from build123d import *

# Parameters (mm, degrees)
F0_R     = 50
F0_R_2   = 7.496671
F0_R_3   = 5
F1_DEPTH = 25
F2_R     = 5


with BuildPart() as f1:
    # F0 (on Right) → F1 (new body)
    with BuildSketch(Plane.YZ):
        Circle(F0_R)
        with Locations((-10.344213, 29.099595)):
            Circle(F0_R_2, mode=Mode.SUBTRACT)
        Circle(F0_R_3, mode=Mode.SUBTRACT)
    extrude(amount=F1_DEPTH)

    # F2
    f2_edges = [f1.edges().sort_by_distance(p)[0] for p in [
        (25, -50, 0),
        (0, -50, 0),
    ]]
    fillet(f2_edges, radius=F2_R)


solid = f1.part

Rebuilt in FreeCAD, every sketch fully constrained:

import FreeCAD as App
import Part
import Sketcher

V = App.Vector
Q = App.Units.Quantity


def edges_at(feature, points):
    """Names of the edges that pass closest to the given points."""
    edges = feature.Shape.Edges
    near = lambda p: min(range(len(edges)), key=lambda i: edges[i].distToShape(Part.Vertex(*p))[0])
    return sorted({f"Edge{near(p) + 1}" for p in points})

doc = App.newDocument("Part")
body = doc.addObject("PartDesign::Body", "Body")

# Sketch on YZ plane
sketch1 = body.newObject("Sketcher::SketchObject", "Sketch")
sketch1.AttachmentSupport = (doc.getObject("YZ_Plane"), [""])
sketch1.MapMode = "FlatFace"
sketch1.addGeometry(Part.Circle(V(0, 0, 0), V(0, 0, 1), 50), False)
sketch1.addGeometry(Part.Circle(V(0, 0, 0), V(0, 0, 1), 5), False)
sketch1.addGeometry(Part.Circle(V(-10, 29, 0), V(0, 0, 1), 7), False)
sketch1.addConstraint(Sketcher.Constraint("Coincident", 0, 3, -1, 1))
sketch1.addConstraint(Sketcher.Constraint("Coincident", 1, 3, -1, 1))
sketch1.addConstraint(Sketcher.Constraint("Diameter", 0, Q("100 mm")))
sketch1.addConstraint(Sketcher.Constraint("Diameter", 1, Q("10 mm")))
sketch1.addConstraint(Sketcher.Constraint("Diameter", 2, Q("14.993342 mm")))
sketch1.addConstraint(Sketcher.Constraint("DistanceX", 2, 3, -1, 1, Q("10.344213 mm")))
sketch1.addConstraint(Sketcher.Constraint("DistanceY", -1, 1, 2, 3, Q("29.099595 mm")))
pad1 = body.newObject("PartDesign::Pad", "Pad")
pad1.Profile = sketch1
pad1.Length = 25
doc.recompute()

fillet = body.newObject("PartDesign::Fillet", "Fillet")
fillet.Base = (pad1, edges_at(pad1, [(25, -50, 0), (0, -50, 0)]))
fillet.Radius = 5

doc.recompute()
